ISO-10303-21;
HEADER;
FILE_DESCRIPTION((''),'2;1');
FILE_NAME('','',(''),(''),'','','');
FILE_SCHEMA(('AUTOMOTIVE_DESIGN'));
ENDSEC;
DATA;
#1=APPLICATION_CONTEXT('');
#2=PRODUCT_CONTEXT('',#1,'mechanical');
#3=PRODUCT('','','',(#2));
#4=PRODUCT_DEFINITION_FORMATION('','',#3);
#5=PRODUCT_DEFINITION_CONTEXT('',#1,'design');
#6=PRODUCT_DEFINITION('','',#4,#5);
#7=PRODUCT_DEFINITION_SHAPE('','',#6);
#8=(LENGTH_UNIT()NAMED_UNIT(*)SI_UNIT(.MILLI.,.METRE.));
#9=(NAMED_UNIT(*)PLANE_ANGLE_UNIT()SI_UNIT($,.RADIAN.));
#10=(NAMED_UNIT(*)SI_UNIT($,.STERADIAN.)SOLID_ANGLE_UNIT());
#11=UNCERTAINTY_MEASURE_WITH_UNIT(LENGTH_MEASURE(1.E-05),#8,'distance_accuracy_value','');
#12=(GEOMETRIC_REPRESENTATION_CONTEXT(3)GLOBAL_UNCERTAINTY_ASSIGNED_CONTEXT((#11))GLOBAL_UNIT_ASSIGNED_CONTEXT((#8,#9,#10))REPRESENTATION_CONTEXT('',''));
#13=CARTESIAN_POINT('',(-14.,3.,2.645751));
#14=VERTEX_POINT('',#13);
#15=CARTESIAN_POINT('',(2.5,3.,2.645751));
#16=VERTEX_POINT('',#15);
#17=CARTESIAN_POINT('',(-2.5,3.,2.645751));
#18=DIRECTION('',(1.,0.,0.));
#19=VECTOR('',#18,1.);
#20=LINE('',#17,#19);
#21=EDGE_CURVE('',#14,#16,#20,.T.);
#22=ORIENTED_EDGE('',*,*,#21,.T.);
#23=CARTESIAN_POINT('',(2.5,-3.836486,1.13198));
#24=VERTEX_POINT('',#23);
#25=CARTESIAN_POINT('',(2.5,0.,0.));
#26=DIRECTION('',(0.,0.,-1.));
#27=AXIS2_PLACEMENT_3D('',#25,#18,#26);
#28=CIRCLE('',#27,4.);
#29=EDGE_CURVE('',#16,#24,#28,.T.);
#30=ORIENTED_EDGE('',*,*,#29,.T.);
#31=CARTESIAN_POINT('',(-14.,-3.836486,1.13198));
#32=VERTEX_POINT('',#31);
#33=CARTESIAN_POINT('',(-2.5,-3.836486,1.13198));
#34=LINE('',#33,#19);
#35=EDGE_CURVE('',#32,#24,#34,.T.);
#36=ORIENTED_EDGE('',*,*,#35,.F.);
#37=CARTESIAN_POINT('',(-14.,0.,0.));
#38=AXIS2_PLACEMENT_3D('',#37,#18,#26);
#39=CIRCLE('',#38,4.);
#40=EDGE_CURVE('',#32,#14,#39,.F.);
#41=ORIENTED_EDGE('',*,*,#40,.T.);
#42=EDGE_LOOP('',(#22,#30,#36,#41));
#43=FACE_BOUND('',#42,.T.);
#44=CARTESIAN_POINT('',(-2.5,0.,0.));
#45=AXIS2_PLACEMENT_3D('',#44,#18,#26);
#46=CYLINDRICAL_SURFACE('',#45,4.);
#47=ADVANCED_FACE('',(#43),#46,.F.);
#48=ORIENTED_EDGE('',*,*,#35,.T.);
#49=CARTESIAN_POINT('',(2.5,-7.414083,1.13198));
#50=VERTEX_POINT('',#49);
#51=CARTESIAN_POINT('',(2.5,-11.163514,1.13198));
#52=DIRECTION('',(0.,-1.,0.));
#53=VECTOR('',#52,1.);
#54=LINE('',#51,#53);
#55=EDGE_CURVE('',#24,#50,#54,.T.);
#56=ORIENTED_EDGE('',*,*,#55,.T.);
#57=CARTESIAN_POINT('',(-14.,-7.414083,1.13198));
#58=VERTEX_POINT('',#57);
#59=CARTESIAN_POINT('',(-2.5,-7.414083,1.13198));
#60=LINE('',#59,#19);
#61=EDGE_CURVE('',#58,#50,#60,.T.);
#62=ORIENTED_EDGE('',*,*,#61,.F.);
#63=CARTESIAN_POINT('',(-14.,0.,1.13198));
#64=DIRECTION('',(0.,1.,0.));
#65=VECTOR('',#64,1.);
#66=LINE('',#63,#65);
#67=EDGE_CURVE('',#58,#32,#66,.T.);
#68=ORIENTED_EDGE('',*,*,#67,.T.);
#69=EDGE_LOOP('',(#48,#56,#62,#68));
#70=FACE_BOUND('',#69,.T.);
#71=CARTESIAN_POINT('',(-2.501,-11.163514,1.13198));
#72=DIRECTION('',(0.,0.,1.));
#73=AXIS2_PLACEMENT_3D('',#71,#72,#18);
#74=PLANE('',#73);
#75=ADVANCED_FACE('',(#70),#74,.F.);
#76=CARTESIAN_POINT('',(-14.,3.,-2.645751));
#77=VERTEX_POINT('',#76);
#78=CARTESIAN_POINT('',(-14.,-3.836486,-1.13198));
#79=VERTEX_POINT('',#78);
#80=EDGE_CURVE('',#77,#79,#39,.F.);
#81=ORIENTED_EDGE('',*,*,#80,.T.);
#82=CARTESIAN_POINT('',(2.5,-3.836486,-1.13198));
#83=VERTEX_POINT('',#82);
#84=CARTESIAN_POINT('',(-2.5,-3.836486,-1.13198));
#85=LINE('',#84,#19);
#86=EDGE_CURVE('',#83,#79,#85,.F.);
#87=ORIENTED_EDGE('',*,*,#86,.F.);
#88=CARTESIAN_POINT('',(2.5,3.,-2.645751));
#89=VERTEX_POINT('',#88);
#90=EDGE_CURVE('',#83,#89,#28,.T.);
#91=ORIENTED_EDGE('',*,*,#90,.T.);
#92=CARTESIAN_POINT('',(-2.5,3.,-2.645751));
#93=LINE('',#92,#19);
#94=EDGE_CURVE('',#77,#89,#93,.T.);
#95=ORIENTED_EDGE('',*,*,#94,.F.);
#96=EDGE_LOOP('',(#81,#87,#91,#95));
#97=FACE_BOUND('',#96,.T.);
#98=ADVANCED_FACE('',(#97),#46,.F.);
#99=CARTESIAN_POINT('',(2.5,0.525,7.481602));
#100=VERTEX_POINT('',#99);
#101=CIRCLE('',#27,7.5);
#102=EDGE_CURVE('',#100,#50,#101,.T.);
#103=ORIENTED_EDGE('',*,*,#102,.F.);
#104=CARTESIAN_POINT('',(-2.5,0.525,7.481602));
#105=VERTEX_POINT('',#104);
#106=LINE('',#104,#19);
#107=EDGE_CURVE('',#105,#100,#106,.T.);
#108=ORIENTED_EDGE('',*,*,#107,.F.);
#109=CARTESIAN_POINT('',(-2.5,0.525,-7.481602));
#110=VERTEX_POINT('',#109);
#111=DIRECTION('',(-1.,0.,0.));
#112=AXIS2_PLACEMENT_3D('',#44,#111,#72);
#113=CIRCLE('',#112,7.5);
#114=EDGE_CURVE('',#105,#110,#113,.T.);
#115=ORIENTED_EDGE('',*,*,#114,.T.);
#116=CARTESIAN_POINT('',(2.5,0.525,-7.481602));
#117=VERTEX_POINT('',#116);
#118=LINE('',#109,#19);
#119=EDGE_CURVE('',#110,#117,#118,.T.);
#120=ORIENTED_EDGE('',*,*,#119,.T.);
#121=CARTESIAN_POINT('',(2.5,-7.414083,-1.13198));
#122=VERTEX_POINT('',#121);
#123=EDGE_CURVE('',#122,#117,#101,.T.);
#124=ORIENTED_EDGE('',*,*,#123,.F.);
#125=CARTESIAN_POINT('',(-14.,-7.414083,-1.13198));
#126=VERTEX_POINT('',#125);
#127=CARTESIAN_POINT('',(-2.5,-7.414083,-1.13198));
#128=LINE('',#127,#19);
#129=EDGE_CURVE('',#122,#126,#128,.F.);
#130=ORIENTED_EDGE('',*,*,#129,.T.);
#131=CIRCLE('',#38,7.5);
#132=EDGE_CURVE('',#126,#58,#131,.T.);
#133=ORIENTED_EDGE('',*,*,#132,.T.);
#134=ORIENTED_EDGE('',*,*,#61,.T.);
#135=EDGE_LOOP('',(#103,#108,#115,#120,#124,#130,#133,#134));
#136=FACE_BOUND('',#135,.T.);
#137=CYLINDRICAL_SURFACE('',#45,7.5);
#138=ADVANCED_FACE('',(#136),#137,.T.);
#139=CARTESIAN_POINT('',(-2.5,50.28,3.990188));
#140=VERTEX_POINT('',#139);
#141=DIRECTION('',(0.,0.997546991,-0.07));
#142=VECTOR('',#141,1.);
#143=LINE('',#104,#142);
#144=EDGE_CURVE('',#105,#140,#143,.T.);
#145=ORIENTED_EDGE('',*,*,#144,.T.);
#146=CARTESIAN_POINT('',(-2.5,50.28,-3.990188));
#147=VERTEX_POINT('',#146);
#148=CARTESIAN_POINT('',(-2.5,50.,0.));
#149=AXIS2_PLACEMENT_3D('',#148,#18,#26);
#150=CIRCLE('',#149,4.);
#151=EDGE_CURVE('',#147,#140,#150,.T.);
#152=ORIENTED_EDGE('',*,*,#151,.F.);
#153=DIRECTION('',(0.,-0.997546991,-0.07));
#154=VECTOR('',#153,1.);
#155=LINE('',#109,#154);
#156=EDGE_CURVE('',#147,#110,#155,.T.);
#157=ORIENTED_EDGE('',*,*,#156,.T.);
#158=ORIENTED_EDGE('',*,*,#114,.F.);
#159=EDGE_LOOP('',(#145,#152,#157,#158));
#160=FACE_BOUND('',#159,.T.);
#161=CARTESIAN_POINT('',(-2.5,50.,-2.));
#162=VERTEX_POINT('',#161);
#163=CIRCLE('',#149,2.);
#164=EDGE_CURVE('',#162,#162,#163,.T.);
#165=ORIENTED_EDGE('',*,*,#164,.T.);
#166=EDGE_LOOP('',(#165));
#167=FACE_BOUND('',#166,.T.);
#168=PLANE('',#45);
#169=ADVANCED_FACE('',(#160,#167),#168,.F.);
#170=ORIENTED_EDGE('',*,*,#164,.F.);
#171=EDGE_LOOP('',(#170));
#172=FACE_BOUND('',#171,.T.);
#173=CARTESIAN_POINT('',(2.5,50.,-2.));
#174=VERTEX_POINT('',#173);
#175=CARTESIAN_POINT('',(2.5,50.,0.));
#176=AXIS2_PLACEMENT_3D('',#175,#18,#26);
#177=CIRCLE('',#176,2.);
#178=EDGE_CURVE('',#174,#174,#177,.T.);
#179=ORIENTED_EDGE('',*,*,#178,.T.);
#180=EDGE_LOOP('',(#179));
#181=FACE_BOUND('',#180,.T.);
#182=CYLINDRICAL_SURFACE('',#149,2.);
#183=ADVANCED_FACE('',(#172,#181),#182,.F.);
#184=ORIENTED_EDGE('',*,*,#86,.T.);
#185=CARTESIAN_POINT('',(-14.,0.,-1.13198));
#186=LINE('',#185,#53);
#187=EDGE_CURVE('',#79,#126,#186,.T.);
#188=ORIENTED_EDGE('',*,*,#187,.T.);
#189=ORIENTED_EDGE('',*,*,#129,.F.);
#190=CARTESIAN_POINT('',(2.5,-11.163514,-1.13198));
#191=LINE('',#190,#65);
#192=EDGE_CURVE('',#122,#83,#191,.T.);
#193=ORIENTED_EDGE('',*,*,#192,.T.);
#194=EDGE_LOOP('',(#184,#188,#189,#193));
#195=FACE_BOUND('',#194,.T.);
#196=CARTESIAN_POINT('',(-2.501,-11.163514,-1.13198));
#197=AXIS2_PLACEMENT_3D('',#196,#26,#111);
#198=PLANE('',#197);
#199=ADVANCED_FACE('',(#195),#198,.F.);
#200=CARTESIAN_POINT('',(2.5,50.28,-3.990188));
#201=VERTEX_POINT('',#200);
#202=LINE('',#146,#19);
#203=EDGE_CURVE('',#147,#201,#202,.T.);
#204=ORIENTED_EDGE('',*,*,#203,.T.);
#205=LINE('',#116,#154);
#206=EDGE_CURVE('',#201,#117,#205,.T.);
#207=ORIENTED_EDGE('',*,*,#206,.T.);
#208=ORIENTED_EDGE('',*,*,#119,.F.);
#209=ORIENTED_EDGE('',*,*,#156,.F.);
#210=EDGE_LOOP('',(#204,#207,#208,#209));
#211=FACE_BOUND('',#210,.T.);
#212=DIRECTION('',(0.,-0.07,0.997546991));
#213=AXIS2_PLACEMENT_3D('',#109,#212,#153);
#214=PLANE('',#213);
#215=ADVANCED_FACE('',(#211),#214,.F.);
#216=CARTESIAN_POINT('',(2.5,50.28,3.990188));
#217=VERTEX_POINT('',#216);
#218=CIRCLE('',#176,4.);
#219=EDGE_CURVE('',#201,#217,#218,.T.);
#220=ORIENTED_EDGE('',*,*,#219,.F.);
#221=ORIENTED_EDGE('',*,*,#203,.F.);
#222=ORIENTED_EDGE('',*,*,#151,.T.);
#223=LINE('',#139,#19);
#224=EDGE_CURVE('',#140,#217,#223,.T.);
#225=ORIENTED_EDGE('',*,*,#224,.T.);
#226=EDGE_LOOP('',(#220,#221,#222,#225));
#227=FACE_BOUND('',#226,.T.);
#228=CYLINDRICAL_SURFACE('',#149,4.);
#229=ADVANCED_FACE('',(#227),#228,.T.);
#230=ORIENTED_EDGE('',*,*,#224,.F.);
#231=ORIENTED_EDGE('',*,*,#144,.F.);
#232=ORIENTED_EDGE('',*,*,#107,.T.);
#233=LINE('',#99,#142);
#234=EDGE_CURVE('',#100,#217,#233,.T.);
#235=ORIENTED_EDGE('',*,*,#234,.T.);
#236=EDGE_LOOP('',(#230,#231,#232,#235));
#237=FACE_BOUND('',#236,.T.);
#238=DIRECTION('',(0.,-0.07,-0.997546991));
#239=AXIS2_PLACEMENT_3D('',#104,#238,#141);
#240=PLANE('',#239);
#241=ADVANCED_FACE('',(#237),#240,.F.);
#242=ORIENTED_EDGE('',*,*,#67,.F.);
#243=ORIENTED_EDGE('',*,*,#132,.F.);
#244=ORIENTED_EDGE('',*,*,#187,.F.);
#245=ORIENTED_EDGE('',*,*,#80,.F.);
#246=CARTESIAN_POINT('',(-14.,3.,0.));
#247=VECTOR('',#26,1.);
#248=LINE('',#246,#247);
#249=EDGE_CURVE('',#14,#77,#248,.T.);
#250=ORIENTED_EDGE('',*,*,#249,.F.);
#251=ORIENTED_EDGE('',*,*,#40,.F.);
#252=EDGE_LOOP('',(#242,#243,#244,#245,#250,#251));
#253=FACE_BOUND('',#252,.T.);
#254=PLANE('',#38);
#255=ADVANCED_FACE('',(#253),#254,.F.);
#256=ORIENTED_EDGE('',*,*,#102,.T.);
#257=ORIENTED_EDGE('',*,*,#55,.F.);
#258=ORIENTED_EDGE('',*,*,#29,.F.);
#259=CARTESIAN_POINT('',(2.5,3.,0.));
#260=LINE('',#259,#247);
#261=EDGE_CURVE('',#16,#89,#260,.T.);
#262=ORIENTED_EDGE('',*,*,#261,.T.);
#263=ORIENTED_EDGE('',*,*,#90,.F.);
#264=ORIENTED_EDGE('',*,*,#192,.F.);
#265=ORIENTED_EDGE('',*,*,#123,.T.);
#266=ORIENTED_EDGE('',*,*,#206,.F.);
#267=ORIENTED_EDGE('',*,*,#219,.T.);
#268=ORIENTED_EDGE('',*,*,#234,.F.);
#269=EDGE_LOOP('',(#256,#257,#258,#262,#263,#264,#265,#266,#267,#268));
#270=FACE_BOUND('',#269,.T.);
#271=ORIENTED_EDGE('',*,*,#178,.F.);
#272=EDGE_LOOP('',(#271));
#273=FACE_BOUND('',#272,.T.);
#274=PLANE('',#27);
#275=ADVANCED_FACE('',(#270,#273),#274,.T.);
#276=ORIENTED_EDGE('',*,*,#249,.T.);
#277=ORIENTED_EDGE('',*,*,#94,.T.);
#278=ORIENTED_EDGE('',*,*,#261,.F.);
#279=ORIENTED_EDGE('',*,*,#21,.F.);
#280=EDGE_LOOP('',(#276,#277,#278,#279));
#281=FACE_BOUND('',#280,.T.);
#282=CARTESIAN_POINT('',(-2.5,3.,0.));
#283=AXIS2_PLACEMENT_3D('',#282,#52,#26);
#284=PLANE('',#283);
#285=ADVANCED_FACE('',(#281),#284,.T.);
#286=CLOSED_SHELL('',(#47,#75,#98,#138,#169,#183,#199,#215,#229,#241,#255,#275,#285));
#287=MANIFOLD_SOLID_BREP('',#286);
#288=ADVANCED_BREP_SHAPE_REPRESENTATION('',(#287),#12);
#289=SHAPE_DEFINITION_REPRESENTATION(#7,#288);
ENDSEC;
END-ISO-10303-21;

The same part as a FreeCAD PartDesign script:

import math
import FreeCAD as App
import Part
import Sketcher
from FreeCAD import Vector


def add_polygon(sketch, points):
    """Adds a closed chain of lines whose ends are joined by coincident constraints."""
    first, n = sketch.GeometryCount, len(points)
    for a, b in zip(points, points[1:] + points[:1]):
        sketch.addGeometry(Part.LineSegment(App.Vector(*a, 0), App.Vector(*b, 0)), False)
    for i in range(n):
        sketch.addConstraint(Sketcher.Constraint("Coincident", first + i, 2, first + (i + 1) % n, 1))

doc = App.newDocument("Part")
body = doc.addObject("PartDesign::Body", "Body")

# Sketch on YZ plane
sketch1 = body.newObject("Sketcher::SketchObject", "Sketch")
sketch1.AttachmentSupport = (doc.getObject("YZ_Plane"), [""])
sketch1.MapMode = "FlatFace"
sketch1.addGeometry(Part.LineSegment(Vector(0.5, -7.5, 0), Vector(50.3, -4, 0)), False)
sketch1.addGeometry(Part.ArcOfCircle(Part.Circle(Vector(50, 0, 0), Vector(0, 0, 1), 4), math.radians(-86), math.radians(86)), False)
sketch1.addGeometry(Part.LineSegment(Vector(50.3, 4, 0), Vector(0.5, 7.5, 0)), False)
sketch1.addGeometry(Part.ArcOfCircle(Part.Circle(Vector(0, 0, 0), Vector(0, 0, 1), 7.5), math.radians(86), math.radians(274)), False)
sketch1.addGeometry(Part.LineSegment(Vector(3, 2.6, 0), Vector(3, -2.6, 0)), False)
sketch1.addGeometry(Part.ArcOfCircle(Part.Circle(Vector(0, 0, 0), Vector(0, 0, 1), 4), math.radians(41), math.radians(319)), False)
sketch1.addGeometry(Part.Circle(Vector(50, 0, 0), Vector(0, 0, 1), 2), False)
sketch1.addConstraint(Sketcher.Constraint("Tangent", 0, 2, 1, 1))
sketch1.addConstraint(Sketcher.Constraint("Tangent", 1, 2, 2, 1))
sketch1.addConstraint(Sketcher.Constraint("Tangent", 2, 2, 3, 1))
sketch1.addConstraint(Sketcher.Constraint("Tangent", 3, 2, 0, 1))
sketch1.addConstraint(Sketcher.Constraint("Coincident", 4, 1, 5, 1))
sketch1.addConstraint(Sketcher.Constraint("Coincident", 5, 2, 4, 2))
sketch1.addConstraint(Sketcher.Constraint("Vertical", 4))
sketch1.addConstraint(Sketcher.Constraint("Coincident", 3, 3, -1, 1))
sketch1.addConstraint(Sketcher.Constraint("Coincident", 5, 3, -1, 1))
sketch1.addConstraint(Sketcher.Constraint("Coincident", 6, 3, 1, 3))
sketch1.addConstraint(Sketcher.Constraint("Equal", 1, 5))
sketch1.addConstraint(Sketcher.Constraint("PointOnObject", 1, 3, -1))
sketch1.addConstraint(Sketcher.Constraint("Diameter", 6, 4.0))
sketch1.addConstraint(Sketcher.Constraint("Radius", 1, 4.0))
sketch1.addConstraint(Sketcher.Constraint("Radius", 3, 7.5))
sketch1.addConstraint(Sketcher.Constraint("DistanceX", -1, 1, 1, 3, 50.0))
sketch1.addConstraint(Sketcher.Constraint("DistanceX", -1, 1, 4, 1, 3.0))
pad1 = body.newObject("PartDesign::Pad", "Pad")
pad1.Profile = sketch1
pad1.Type = "TwoLengths"
pad1.Length = 2.5
pad1.Length2 = 2.5

# Sketch on YZ plane
sketch2 = body.newObject("Sketcher::SketchObject", "Sketch001")
sketch2.AttachmentSupport = (doc.getObject("YZ_Plane"), [""])
sketch2.MapMode = "FlatFace"
sketch2.AttachmentOffset = App.Placement(Vector(0, 0, 2.5), App.Rotation())
add_polygon(sketch2, [(-3.8, 1.1), (-11.2, 1.1), (-11.2, -1.1), (-3.8, -1.1)])  # lines 0-3
sketch2.addConstraint(Sketcher.Constraint("Horizontal", 0))
sketch2.addConstraint(Sketcher.Constraint("Vertical", 1))
sketch2.addConstraint(Sketcher.Constraint("Horizontal", 2))
sketch2.addConstraint(Sketcher.Constraint("Vertical", 3))
sketch2.addConstraint(Sketcher.Constraint("DistanceX", 0, 2, 0, 1, 7.327029))
sketch2.addConstraint(Sketcher.Constraint("DistanceY", 1, 2, 1, 1, 2.26396))
sketch2.addConstraint(Sketcher.Constraint("DistanceY", -1, 1, 0, 2, 1.13198))
sketch2.addConstraint(Sketcher.Constraint("DistanceX", 0, 2, -1, 1, 11.163514))
pocket1 = body.newObject("PartDesign::Pocket", "Pocket")
pocket1.Profile = sketch2
pocket1.Type = "UpToFirst"

# Sketch on YZ plane
sketch3 = body.newObject("Sketcher::SketchObject", "Sketch002")
sketch3.AttachmentSupport = (doc.getObject("YZ_Plane"), [""])
sketch3.MapMode = "FlatFace"
sketch3.AttachmentOffset = App.Placement(Vector(0, 0, -14), App.Rotation())
sketch3.addGeometry(Part.ArcOfCircle(Part.Circle(Vector(0, 0, 0), Vector(0, 0, 1), 7.5), math.radians(-171), math.radians(-86)), False)
sketch3.addGeometry(Part.LineSegment(Vector(-7.4, -1.1, 0), Vector(-3.8, -1.1, 0)), False)
sketch3.addGeometry(Part.ArcOfCircle(Part.Circle(Vector(0, 0, 0), Vector(0, 0, 1), 4), math.radians(-164), math.radians(-41)), False)
sketch3.addGeometry(Part.LineSegment(Vector(3, -2.6, 0), Vector(3, 2.6, 0)), False)
sketch3.addGeometry(Part.ArcOfCircle(Part.Circle(Vector(0, 0, 0), Vector(0, 0, 1), 4), math.radians(41), math.radians(164)), False)
sketch3.addGeometry(Part.LineSegment(Vector(-3.8, 1.1, 0), Vector(-7.4, 1.1, 0)), False)
sketch3.addGeometry(Part.ArcOfCircle(Part.Circle(Vector(0, 0, 0), Vector(0, 0, 1), 7.5), math.radians(90), math.radians(171)), False)
sketch3.addGeometry(Part.ArcOfCircle(Part.Circle(Vector(0, 0, 0), Vector(0, 0, 1), 7.5), math.radians(85.99), math.radians(90)), False)
sketch3.addGeometry(Part.ArcOfCircle(Part.Circle(Vector(0, 0, 0), Vector(0, 0, 1), 7.5), math.radians(-86), math.radians(86)), False)
sketch3.addConstraint(Sketcher.Constraint("Coincident", 0, 1, 1, 1))
sketch3.addConstraint(Sketcher.Constraint("Coincident", 1, 2, 2, 1))
sketch3.addConstraint(Sketcher.Constraint("Coincident", 2, 2, 3, 1))
sketch3.addConstraint(Sketcher.Constraint("Coincident", 3, 2, 4, 1))
sketch3.addConstraint(Sketcher.Constraint("Coincident", 4, 2, 5, 1))
sketch3.addConstraint(Sketcher.Constraint("Coincident", 5, 2, 6, 2))
sketch3.addConstraint(Sketcher.Constraint("Tangent", 6, 1, 7, 2))
sketch3.addConstraint(Sketcher.Constraint("Tangent", 7, 1, 8, 2))
sketch3.addConstraint(Sketcher.Constraint("Tangent", 8, 1, 0, 2))
sketch3.addConstraint(Sketcher.Constraint("Horizontal", 1))
sketch3.addConstraint(Sketcher.Constraint("Vertical", 3))
sketch3.addConstraint(Sketcher.Constraint("Horizontal", 5))
sketch3.addConstraint(Sketcher.Constraint("Coincident", 0, 3, -1, 1))
sketch3.addConstraint(Sketcher.Constraint("Coincident", 2, 3, -1, 1))
sketch3.addConstraint(Sketcher.Constraint("Coincident", 4, 3, -1, 1))
sketch3.addConstraint(Sketcher.Constraint("Coincident", 6, 3, -1, 1))
sketch3.addConstraint(Sketcher.Constraint("Equal", 2, 4))
sketch3.addConstraint(Sketcher.Constraint("Equal", 0, 6))
sketch3.addConstraint(Sketcher.Constraint("PointOnObject", 6, 1, -2))
sketch3.addConstraint(Sketcher.Constraint("Vertical", 1, 2, 4, 2))
sketch3.addConstraint(Sketcher.Constraint("Vertical", 7, 1, 8, 1))
sketch3.addConstraint(Sketcher.Constraint("Radius", 2, 4.0))
sketch3.addConstraint(Sketcher.Constraint("Radius", 0, 7.5))
sketch3.addConstraint(Sketcher.Constraint("DistanceX", -1, 1, 2, 2, 3.0))
sketch3.addConstraint(Sketcher.Constraint("DistanceX", -1, 1, 7, 1, 0.525))
sketch3.addConstraint(Sketcher.Constraint("DistanceX", 1, 1, 1, 2, 3.577597))
pad2 = body.newObject("PartDesign::Pad", "Pad001")
pad2.Profile = sketch3
pad2.Length = 11.5

doc.recompute()
